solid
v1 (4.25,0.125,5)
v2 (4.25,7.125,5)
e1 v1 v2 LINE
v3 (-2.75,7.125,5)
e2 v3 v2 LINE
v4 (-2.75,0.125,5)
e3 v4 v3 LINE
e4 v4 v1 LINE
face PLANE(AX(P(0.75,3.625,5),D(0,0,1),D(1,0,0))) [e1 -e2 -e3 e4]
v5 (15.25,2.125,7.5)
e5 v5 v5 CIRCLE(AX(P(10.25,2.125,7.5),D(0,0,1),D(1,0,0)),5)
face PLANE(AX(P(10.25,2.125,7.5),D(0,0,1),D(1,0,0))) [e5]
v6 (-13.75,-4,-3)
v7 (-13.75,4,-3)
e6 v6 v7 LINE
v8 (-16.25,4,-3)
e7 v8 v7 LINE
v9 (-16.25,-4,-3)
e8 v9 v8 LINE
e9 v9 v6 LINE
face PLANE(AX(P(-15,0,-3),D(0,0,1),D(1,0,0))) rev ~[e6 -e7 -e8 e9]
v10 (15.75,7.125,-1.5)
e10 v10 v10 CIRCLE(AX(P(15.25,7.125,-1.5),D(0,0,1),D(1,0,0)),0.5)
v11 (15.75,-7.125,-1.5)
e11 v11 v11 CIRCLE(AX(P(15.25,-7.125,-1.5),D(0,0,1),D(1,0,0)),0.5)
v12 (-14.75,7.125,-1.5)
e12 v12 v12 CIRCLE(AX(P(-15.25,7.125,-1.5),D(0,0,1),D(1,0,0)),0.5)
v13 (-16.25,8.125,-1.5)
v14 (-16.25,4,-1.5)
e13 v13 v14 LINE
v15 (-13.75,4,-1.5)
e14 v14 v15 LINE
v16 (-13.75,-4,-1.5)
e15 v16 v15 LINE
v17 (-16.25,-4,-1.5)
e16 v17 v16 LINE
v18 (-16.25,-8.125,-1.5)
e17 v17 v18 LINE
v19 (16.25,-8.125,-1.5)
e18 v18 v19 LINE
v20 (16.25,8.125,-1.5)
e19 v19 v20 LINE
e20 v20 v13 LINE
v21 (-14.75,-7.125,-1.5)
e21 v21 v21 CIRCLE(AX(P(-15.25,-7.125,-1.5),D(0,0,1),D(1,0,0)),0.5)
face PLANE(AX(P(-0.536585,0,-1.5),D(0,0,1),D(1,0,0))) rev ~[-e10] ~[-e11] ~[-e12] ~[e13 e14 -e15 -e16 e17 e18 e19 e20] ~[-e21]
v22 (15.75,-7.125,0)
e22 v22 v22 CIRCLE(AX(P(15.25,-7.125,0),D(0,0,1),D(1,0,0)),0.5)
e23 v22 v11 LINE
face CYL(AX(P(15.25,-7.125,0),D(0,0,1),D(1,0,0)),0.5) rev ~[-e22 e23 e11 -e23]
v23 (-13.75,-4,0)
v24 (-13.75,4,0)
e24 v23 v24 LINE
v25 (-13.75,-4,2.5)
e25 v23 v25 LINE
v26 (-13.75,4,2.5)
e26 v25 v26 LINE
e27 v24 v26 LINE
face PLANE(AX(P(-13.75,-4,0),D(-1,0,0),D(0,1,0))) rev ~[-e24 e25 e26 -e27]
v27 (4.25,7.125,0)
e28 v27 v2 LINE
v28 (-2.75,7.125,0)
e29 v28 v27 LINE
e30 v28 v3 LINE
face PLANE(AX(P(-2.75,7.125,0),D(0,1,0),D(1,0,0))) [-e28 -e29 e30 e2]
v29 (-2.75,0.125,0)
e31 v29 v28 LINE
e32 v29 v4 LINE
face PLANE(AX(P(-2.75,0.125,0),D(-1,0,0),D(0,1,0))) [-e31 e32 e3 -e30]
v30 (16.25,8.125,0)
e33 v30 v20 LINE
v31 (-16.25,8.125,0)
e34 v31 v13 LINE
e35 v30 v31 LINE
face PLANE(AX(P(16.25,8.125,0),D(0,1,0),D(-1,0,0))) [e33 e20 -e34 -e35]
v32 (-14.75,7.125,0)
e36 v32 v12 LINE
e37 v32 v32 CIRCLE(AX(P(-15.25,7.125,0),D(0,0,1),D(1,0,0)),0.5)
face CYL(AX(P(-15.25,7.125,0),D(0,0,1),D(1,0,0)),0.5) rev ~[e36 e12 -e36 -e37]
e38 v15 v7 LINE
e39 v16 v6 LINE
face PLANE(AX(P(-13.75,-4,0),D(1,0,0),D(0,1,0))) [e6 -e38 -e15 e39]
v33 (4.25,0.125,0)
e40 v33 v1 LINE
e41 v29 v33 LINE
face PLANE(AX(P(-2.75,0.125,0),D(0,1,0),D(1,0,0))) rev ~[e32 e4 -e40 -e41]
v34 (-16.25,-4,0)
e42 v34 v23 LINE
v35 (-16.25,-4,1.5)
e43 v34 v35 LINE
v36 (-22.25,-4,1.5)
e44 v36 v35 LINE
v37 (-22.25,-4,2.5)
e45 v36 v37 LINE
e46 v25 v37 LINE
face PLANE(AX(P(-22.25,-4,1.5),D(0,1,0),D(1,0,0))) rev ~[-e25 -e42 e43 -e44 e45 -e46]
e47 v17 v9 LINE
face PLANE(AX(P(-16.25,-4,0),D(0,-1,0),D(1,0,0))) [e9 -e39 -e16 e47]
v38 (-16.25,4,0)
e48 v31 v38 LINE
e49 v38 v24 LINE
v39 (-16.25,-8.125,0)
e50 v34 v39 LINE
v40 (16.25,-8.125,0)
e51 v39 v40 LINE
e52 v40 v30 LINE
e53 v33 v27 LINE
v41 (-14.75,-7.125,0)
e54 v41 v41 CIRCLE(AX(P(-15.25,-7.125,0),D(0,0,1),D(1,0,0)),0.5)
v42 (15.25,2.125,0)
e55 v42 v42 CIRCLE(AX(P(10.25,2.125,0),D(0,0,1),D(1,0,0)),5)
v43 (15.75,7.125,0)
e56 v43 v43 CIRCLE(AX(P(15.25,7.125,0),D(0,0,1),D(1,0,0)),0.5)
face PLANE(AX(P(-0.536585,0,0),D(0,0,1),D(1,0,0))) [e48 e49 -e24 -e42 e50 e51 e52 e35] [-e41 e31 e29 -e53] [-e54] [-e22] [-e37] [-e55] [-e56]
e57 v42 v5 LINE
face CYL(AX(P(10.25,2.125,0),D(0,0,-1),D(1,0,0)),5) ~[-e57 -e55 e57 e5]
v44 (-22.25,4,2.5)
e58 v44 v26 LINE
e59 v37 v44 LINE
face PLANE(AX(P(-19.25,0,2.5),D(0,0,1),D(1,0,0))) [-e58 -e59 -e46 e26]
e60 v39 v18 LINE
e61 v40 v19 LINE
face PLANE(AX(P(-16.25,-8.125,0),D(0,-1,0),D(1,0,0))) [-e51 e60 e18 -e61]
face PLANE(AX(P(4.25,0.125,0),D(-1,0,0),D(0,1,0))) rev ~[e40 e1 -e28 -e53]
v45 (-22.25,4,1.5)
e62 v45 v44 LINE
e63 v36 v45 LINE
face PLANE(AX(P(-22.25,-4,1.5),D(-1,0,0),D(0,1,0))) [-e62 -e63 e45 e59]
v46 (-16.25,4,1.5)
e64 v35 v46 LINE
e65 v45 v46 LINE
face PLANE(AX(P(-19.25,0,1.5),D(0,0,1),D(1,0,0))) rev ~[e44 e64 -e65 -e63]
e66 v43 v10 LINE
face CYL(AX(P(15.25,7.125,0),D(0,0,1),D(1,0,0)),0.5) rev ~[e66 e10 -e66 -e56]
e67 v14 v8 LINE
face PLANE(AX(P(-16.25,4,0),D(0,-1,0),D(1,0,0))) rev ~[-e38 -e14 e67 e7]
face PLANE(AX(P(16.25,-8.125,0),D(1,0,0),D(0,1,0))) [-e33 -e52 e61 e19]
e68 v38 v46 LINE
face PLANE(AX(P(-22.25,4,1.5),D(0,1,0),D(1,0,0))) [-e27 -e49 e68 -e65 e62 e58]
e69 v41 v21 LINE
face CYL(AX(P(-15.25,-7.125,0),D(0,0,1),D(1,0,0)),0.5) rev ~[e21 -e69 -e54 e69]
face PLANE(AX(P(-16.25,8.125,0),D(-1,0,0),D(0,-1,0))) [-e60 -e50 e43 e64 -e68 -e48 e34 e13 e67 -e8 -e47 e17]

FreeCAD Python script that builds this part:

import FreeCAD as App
import Part
import Sketcher
from FreeCAD import Vector

doc = App.newDocument("Part")
body = doc.addObject("PartDesign::Body", "Body")

sketch1 = body.newObject("Sketcher::SketchObject", "Sketch")
sketch1.AttachmentSupport = (doc.getObject("XY_Plane"), [""])
sketch1.MapMode = "FlatFace"
sketch1.addGeometry([
    Part.LineSegment(Vector(16.2, 8.1, 0), Vector(-16.2, 8.1, 0)),
    Part.LineSegment(Vector(-16.2, 8.1, 0), Vector(-16.2, -8.1, 0)),
    Part.LineSegment(Vector(-16.2, -8.1, 0), Vector(16.2, -8.1, 0)),
    Part.LineSegment(Vector(16.2, -8.1, 0), Vector(16.2, 8.1, 0)),
    Part.Circle(Vector(-15.2, -7.1, 0), Vector(0, 0, 1), 0.5),
    Part.Circle(Vector(15.2, -7.1, 0), Vector(0, 0, 1), 0.5),
    Part.Circle(Vector(-15.2, 7.1, 0), Vector(0, 0, 1), 0.5),
    Part.Circle(Vector(15.2, 7.1, 0), Vector(0, 0, 1), 0.5),
], False)
sketch1.addConstraint([
    Sketcher.Constraint("Coincident", 0, 2, 1, 1),
    Sketcher.Constraint("Coincident", 1, 2, 2, 1),
    Sketcher.Constraint("Coincident", 2, 2, 3, 1),
    Sketcher.Constraint("Coincident", 3, 2, 0, 1),
    Sketcher.Constraint("Horizontal", 0),
    Sketcher.Constraint("Vertical", 1),
    Sketcher.Constraint("Horizontal", 2),
    Sketcher.Constraint("Vertical", 3),
    Sketcher.Constraint("Equal", 4, 5),
    Sketcher.Constraint("Equal", 5, 6),
    Sketcher.Constraint("Equal", 6, 7),
    Sketcher.Constraint("Symmetric", 5, 3, 6, 3, -1, 1),
    Sketcher.Constraint("Symmetric", 4, 3, 7, 3, -1, 1),
    Sketcher.Constraint("Symmetric", 0, 2, 2, 2, -1, 1),
    Sketcher.Constraint("Symmetric", 4, 3, 5, 3, -2),
    Sketcher.Constraint("Diameter", 4, 1.0),
    Sketcher.Constraint("DistanceX", 0, 2, 0, 1, 32.5),
    Sketcher.Constraint("DistanceX", 0, 2, 6, 3, 1.0),
    Sketcher.Constraint("DistanceY", 6, 3, 0, 2, 1.0),
    Sketcher.Constraint("DistanceY", 1, 2, 1, 1, 16.25),
])
pad1 = body.newObject("PartDesign::Pad", "Pad")
pad1.Profile = sketch1
pad1.Length = 1.5
pad1.Reversed = True

sketch2 = body.newObject("Sketcher::SketchObject", "Sketch001")
sketch2.AttachmentSupport = (doc.getObject("XY_Plane"), [""])
sketch2.MapMode = "FlatFace"
sketch2.addGeometry(Part.Circle(Vector(10, 2, 0), Vector(0, 0, 1), 5), False)
sketch2.addConstraint([
    Sketcher.Constraint("Diameter", 0, 10.0),
    Sketcher.Constraint("DistanceX", -1, 1, 0, 3, 10.25),
    Sketcher.Constraint("DistanceY", -1, 1, 0, 3, 2.125),
])
pad2 = body.newObject("PartDesign::Pad", "Pad001")
pad2.Profile = sketch2
pad2.Length = 7.5

sketch3 = body.newObject("Sketcher::SketchObject", "Sketch002")
sketch3.AttachmentSupport = (doc.getObject("XY_Plane"), [""])
sketch3.MapMode = "FlatFace"
sketch3.addGeometry([
    Part.LineSegment(Vector(-3, 7, 0), Vector(-3, 0, 0)),
    Part.LineSegment(Vector(-3, 0, 0), Vector(4, 0, 0)),
    Part.LineSegment(Vector(4, 0, 0), Vector(4, 7, 0)),
    Part.LineSegment(Vector(4, 7, 0), Vector(-3, 7, 0)),
], False)
sketch3.addConstraint([
    Sketcher.Constraint("Coincident", 0, 2, 1, 1),
    Sketcher.Constraint("Coincident", 1, 2, 2, 1),
    Sketcher.Constraint("Coincident", 2, 2, 3, 1),
    Sketcher.Constraint("Coincident", 3, 2, 0, 1),
    Sketcher.Constraint("Vertical", 0),
    Sketcher.Constraint("Horizontal", 1),
    Sketcher.Constraint("Vertical", 2),
    Sketcher.Constraint("Horizontal", 3),
    Sketcher.Constraint("Equal", 3, 0),
    Sketcher.Constraint("DistanceX", 1, 1, 1, 2, 7.0),
    Sketcher.Constraint("DistanceX", 0, 2, -1, 1, 2.75),
    Sketcher.Constraint("DistanceY", -1, 1, 0, 2, 0.125),
])
pad3 = body.newObject("PartDesign::Pad", "Pad002")
pad3.Profile = sketch3
pad3.Length = 5

sketch4 = body.newObject("Sketcher::SketchObject", "Sketch003")
sketch4.AttachmentSupport = (doc.getObject("XY_Plane"), [""])
sketch4.MapMode = "FlatFace"
sketch4.addGeometry([
    Part.LineSegment(Vector(-16.2, 4, 0), Vector(-16.2, -4, 0)),
    Part.LineSegment(Vector(-16.2, -4, 0), Vector(-13.8, -4, 0)),
    Part.LineSegment(Vector(-13.8, -4, 0), Vector(-13.8, 4, 0)),
    Part.LineSegment(Vector(-13.8, 4, 0), Vector(-16.2, 4, 0)),
], False)
sketch4.addConstraint([
    Sketcher.Constraint("Coincident", 0, 2, 1, 1),
    Sketcher.Constraint("Coincident", 1, 2, 2, 1),
    Sketcher.Constraint("Coincident", 2, 2, 3, 1),
    Sketcher.Constraint("Coincident", 3, 2, 0, 1),
    Sketcher.Constraint("Vertical", 0),
    Sketcher.Constraint("Horizontal", 1),
    Sketcher.Constraint("Vertical", 2),
    Sketcher.Constraint("Horizontal", 3),
    Sketcher.Constraint("DistanceY", 0, 2, 0, 1, 8.0),
    Sketcher.Constraint("DistanceX", 1, 1, 1, 2, 2.5),
    Sketcher.Constraint("DistanceY", 0, 2, -1, 1, 4.0),
    Sketcher.Constraint("DistanceX", 0, 2, -1, 1, 16.25),
])
pad4 = body.newObject("PartDesign::Pad", "Pad003")
pad4.Profile = sketch4
pad4.Type = "TwoLengths"
pad4.Length = 2.5
pad4.Length2 = 3

sketch5 = body.newObject("Sketcher::SketchObject", "Sketch004")
sketch5.AttachmentSupport = (doc.getObject("XY_Plane"), [""])
sketch5.MapMode = "FlatFace"
sketch5.AttachmentOffset = App.Placement(Vector(0, 0, 1.5), App.Rotation())
sketch5.addGeometry([
    Part.LineSegment(Vector(-22, 4, 0), Vector(-22, -4, 0)),
    Part.LineSegment(Vector(-22, -4, 0), Vector(-16, -4, 0)),
    Part.LineSegment(Vector(-16, -4, 0), Vector(-16, 4, 0)),
    Part.LineSegment(Vector(-16, 4, 0), Vector(-22, 4, 0)),
], False)
sketch5.addConstraint([
    Sketcher.Constraint("Coincident", 0, 2, 1, 1),
    Sketcher.Constraint("Coincident", 1, 2, 2, 1),
    Sketcher.Constraint("Coincident", 2, 2, 3, 1),
    Sketcher.Constraint("Coincident", 3, 2, 0, 1),
    Sketcher.Constraint("Vertical", 0),
    Sketcher.Constraint("Horizontal", 1),
    Sketcher.Constraint("Vertical", 2),
    Sketcher.Constraint("Horizontal", 3),
    Sketcher.Constraint("DistanceX", 1, 1, 1, 2, 6.0),
    Sketcher.Constraint("DistanceY", 0, 2, 0, 1, 8.0),
    Sketcher.Constraint("DistanceY", 0, 2, -1, 1, 4.0),
    Sketcher.Constraint("DistanceX", 0, 2, -1, 1, 22.25),
])
pad5 = body.newObject("PartDesign::Pad", "Pad004")
pad5.Profile = sketch5
pad5.Length = 1

doc.recompute()
